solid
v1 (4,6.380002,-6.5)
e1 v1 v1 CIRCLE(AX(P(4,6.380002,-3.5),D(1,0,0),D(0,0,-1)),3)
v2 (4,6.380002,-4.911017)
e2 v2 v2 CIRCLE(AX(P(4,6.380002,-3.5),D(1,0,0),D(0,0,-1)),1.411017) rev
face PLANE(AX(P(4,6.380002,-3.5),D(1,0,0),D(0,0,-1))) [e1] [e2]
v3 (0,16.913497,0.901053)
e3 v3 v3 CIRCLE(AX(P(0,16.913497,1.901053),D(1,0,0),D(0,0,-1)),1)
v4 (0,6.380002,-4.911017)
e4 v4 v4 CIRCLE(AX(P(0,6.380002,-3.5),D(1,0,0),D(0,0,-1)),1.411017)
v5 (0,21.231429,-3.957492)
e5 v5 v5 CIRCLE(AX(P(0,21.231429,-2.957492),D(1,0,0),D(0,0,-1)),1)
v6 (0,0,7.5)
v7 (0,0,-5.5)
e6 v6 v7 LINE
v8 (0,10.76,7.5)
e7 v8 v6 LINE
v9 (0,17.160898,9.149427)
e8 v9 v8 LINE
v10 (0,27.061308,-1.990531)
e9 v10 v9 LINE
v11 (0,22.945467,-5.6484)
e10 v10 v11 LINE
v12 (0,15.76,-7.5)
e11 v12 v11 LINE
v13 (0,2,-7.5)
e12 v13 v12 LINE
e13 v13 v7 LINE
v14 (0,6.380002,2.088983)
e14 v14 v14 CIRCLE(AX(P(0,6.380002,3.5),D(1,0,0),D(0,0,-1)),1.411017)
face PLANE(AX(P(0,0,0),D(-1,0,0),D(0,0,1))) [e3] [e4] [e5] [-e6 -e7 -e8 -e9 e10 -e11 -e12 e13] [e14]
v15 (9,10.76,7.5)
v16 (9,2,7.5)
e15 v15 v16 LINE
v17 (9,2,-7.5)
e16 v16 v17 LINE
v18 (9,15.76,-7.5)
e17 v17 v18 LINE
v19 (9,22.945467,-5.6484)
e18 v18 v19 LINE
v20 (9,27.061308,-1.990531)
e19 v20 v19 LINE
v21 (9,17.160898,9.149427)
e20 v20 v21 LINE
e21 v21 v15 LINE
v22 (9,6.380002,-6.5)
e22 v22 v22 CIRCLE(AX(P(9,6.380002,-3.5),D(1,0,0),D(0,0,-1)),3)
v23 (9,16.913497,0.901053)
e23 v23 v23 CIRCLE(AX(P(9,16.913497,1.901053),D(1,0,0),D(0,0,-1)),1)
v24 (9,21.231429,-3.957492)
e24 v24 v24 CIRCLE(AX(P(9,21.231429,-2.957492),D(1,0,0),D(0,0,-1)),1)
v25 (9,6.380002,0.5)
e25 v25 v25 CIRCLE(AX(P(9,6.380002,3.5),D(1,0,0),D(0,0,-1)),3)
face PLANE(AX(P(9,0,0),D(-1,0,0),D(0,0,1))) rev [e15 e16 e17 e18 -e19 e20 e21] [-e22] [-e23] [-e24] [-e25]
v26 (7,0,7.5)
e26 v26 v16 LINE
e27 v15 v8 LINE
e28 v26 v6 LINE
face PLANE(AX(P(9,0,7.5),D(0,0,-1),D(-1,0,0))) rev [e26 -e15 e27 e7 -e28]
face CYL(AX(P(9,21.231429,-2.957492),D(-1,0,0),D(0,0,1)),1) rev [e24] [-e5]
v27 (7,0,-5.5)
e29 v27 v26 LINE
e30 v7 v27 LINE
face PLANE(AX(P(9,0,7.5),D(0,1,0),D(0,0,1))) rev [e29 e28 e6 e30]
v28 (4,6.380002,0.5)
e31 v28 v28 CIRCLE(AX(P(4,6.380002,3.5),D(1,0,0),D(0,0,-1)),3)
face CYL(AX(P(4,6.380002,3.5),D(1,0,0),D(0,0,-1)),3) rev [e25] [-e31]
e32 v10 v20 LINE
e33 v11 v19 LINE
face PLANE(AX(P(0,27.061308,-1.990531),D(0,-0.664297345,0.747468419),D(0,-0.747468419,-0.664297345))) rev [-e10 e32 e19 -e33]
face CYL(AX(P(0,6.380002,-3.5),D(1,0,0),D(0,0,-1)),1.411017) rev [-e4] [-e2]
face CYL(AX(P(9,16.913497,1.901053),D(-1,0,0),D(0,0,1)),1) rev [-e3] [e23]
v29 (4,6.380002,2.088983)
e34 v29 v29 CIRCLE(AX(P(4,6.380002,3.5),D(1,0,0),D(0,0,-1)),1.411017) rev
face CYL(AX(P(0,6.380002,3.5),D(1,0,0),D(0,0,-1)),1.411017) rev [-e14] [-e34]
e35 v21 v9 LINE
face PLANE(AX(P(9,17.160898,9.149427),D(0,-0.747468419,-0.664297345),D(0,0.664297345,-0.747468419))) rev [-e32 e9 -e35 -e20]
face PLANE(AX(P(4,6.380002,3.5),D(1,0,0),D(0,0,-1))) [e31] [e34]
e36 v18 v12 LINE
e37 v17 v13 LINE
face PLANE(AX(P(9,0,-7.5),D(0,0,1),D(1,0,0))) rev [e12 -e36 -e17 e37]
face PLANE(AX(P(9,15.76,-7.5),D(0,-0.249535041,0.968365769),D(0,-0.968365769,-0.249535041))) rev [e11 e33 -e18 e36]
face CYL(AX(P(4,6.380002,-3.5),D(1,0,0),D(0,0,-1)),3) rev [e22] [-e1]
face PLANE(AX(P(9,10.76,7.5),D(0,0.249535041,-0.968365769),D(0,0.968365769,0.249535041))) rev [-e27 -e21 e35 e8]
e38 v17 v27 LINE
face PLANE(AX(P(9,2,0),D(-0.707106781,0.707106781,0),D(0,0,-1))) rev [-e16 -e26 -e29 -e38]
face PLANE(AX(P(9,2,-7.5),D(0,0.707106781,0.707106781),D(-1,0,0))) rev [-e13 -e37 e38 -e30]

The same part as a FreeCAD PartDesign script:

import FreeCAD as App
import Part
import Sketcher
from FreeCAD import Vector
Q = App.Units.Quantity


def edges_at(feature, points):
    """Names of the edges that pass closest to the given points."""
    edges = feature.Shape.Edges
    near = lambda p: min(range(len(edges)), key=lambda i: edges[i].distToShape(Part.Vertex(*p))[0])
    return sorted({f"Edge{near(p) + 1}" for p in points})

doc = App.newDocument("Part")
body = doc.addObject("PartDesign::Body", "Body")

# Sketch on YZ plane
sketch1 = body.newObject("Sketcher::SketchObject", "Sketch")
sketch1.AttachmentSupport = (doc.getObject("YZ_Plane"), [""])
sketch1.MapMode = "FlatFace"
sketch1.addGeometry(Part.LineSegment(Vector(0, 7.5, 0), Vector(0, -7.5, 0)), False)
sketch1.addGeometry(Part.LineSegment(Vector(0, -7.5, 0), Vector(15.8, -7.5, 0)), False)
sketch1.addGeometry(Part.LineSegment(Vector(15.8, -7.5, 0), Vector(28.9, -4.1, 0)), False)
sketch1.addGeometry(Part.LineSegment(Vector(28.9, -4.1, 0), Vector(17.2, 9.1, 0)), False)
sketch1.addGeometry(Part.LineSegment(Vector(17.2, 9.1, 0), Vector(10.8, 7.5, 0)), False)
sketch1.addGeometry(Part.LineSegment(Vector(10.8, 7.5, 0), Vector(0, 7.5, 0)), False)
sketch1.addGeometry(Part.Circle(Vector(16.9, 1.9, 0), Vector(0, 0, 1), 1), False)
sketch1.addGeometry(Part.Circle(Vector(21.2, -3, 0), Vector(0, 0, 1), 1), False)
sketch1.addConstraint(Sketcher.Constraint("Coincident", 0, 2, 1, 1))
sketch1.addConstraint(Sketcher.Constraint("Coincident", 1, 2, 2, 1))
sketch1.addConstraint(Sketcher.Constraint("Coincident", 2, 2, 3, 1))
sketch1.addConstraint(Sketcher.Constraint("Coincident", 3, 2, 4, 1))
sketch1.addConstraint(Sketcher.Constraint("Coincident", 4, 2, 5, 1))
sketch1.addConstraint(Sketcher.Constraint("Coincident", 5, 2, 0, 1))
sketch1.addConstraint(Sketcher.Constraint("Vertical", 0))
sketch1.addConstraint(Sketcher.Constraint("Horizontal", 1))
sketch1.addConstraint(Sketcher.Constraint("Horizontal", 5))
sketch1.addConstraint(Sketcher.Constraint("Equal", 6, 7))
sketch1.addConstraint(Sketcher.Constraint("Symmetric", 0, 2, 5, 2, -1, 1))
sketch1.addConstraint(Sketcher.Constraint("Parallel", 2, 4))
sketch1.addConstraint(Sketcher.Constraint("Diameter", 6, 2.0))
sketch1.addConstraint(Sketcher.Constraint("DistanceY", 0, 2, 0, 1, 15.0))
sketch1.addConstraint(Sketcher.Constraint("DistanceX", 4, 2, 1, 2, 5.0))
sketch1.addConstraint(Sketcher.Constraint("DistanceX", 1, 1, 1, 2, 15.76))
sketch1.addConstraint(Sketcher.Constraint("Angle", 2, Q("14.45 deg")))
sketch1.addConstraint(Sketcher.Constraint("Distance", 2, 13.61))
sketch1.addConstraint(Sketcher.Constraint("Distance", 4, 6.61))
sketch1.addConstraint(Sketcher.Constraint("DistanceX", 6, 3, 3, 2, 0.247401))
sketch1.addConstraint(Sketcher.Constraint("DistanceX", -1, 1, 7, 3, 21.231429))
sketch1.addConstraint(Sketcher.Constraint("DistanceY", 7, 3, -1, 1, 2.957492))
sketch1.addConstraint(Sketcher.Constraint("DistanceY", 2, 2, 6, 3, 6.004881))
pad1 = body.newObject("PartDesign::Pad", "Pad")
pad1.Profile = sketch1
pad1.Length = 9
doc.recompute()

chamfer = body.newObject("PartDesign::Chamfer", "Chamfer")
chamfer.Base = (pad1, edges_at(pad1, [(4.5, 0, -7.5), (9, 0, 0)]))
chamfer.Size = 2

# Sketch on YZ plane
sketch2 = body.newObject("Sketcher::SketchObject", "Sketch001")
sketch2.AttachmentSupport = (doc.getObject("YZ_Plane"), [""])
sketch2.MapMode = "FlatFace"
sketch2.AttachmentOffset = App.Placement(Vector(0, 0, 9), App.Rotation())
sketch2.addGeometry(Part.Circle(Vector(6.4, -3.5, 0), Vector(0, 0, 1), 1.4), False)
sketch2.addGeometry(Part.Circle(Vector(6.4, 3.5, 0), Vector(0, 0, 1), 1.4), False)
sketch2.addConstraint(Sketcher.Constraint("Equal", 0, 1))
sketch2.addConstraint(Sketcher.Constraint("Symmetric", 0, 3, 1, 3, -1))
sketch2.addConstraint(Sketcher.Constraint("DistanceY", 0, 3, 1, 3, 7.0))
sketch2.addConstraint(Sketcher.Constraint("DistanceX", -1, 1, 0, 3, 6.380002))
sketch2.addConstraint(Sketcher.Constraint("Diameter", 0, 2.822033))
pocket1 = body.newObject("PartDesign::Pocket", "Pocket")
pocket1.Profile = sketch2
pocket1.Type = "ThroughAll"

# Sketch on YZ plane
sketch3 = body.newObject("Sketcher::SketchObject", "Sketch002")
sketch3.AttachmentSupport = (doc.getObject("YZ_Plane"), [""])
sketch3.MapMode = "FlatFace"
sketch3.AttachmentOffset = App.Placement(Vector(0, 0, 9), App.Rotation())
sketch3.addGeometry(Part.LineSegment(Vector(27.1, -2, 0), Vector(22.9, -5.6, 0)), False)
sketch3.addGeometry(Part.LineSegment(Vector(22.9, -5.6, 0), Vector(28.9, -4.1, 0)), False)
sketch3.addGeometry(Part.LineSegment(Vector(28.9, -4.1, 0), Vector(27.1, -2, 0)), False)
sketch3.addConstraint(Sketcher.Constraint("Coincident", 0, 2, 1, 1))
sketch3.addConstraint(Sketcher.Constraint("Coincident", 1, 2, 2, 1))
sketch3.addConstraint(Sketcher.Constraint("Coincident", 2, 2, 0, 1))
sketch3.addConstraint(Sketcher.Constraint("Perpendicular", 0, 2))
sketch3.addConstraint(Sketcher.Constraint("Angle", 1, Q("14.45 deg")))
sketch3.addConstraint(Sketcher.Constraint("Distance", 1, 6.1898))
sketch3.addConstraint(Sketcher.Constraint("DistanceY", 0, 2, -1, 1, 5.6484))
sketch3.addConstraint(Sketcher.Constraint("DistanceX", -1, 1, 1, 2, 28.939458))
sketch3.addConstraint(Sketcher.Constraint("DistanceX", -1, 1, 2, 2, 27.061308))
pocket2 = body.newObject("PartDesign::Pocket", "Pocket001")
pocket2.Profile = sketch3
pocket2.Type = "ThroughAll"

# Sketch on YZ plane
sketch4 = body.newObject("Sketcher::SketchObject", "Sketch003")
sketch4.AttachmentSupport = (doc.getObject("YZ_Plane"), [""])
sketch4.MapMode = "FlatFace"
sketch4.AttachmentOffset = App.Placement(Vector(0, 0, 9), App.Rotation())
sketch4.addGeometry(Part.Circle(Vector(6.4, -3.5, 0), Vector(0, 0, 1), 3), False)
sketch4.addGeometry(Part.Circle(Vector(6.4, 3.5, 0), Vector(0, 0, 1), 3), False)
sketch4.addConstraint(Sketcher.Constraint("Equal", 0, 1))
sketch4.addConstraint(Sketcher.Constraint("Symmetric", 0, 3, 1, 3, -1))
sketch4.addConstraint(Sketcher.Constraint("Diameter", 0, 6.0))
sketch4.addConstraint(Sketcher.Constraint("DistanceY", 0, 3, 1, 3, 7.0))
sketch4.addConstraint(Sketcher.Constraint("DistanceX", -1, 1, 0, 3, 6.380002))
pocket3 = body.newObject("PartDesign::Pocket", "Pocket002")
pocket3.Profile = sketch4
pocket3.Length = 5

doc.recompute()
